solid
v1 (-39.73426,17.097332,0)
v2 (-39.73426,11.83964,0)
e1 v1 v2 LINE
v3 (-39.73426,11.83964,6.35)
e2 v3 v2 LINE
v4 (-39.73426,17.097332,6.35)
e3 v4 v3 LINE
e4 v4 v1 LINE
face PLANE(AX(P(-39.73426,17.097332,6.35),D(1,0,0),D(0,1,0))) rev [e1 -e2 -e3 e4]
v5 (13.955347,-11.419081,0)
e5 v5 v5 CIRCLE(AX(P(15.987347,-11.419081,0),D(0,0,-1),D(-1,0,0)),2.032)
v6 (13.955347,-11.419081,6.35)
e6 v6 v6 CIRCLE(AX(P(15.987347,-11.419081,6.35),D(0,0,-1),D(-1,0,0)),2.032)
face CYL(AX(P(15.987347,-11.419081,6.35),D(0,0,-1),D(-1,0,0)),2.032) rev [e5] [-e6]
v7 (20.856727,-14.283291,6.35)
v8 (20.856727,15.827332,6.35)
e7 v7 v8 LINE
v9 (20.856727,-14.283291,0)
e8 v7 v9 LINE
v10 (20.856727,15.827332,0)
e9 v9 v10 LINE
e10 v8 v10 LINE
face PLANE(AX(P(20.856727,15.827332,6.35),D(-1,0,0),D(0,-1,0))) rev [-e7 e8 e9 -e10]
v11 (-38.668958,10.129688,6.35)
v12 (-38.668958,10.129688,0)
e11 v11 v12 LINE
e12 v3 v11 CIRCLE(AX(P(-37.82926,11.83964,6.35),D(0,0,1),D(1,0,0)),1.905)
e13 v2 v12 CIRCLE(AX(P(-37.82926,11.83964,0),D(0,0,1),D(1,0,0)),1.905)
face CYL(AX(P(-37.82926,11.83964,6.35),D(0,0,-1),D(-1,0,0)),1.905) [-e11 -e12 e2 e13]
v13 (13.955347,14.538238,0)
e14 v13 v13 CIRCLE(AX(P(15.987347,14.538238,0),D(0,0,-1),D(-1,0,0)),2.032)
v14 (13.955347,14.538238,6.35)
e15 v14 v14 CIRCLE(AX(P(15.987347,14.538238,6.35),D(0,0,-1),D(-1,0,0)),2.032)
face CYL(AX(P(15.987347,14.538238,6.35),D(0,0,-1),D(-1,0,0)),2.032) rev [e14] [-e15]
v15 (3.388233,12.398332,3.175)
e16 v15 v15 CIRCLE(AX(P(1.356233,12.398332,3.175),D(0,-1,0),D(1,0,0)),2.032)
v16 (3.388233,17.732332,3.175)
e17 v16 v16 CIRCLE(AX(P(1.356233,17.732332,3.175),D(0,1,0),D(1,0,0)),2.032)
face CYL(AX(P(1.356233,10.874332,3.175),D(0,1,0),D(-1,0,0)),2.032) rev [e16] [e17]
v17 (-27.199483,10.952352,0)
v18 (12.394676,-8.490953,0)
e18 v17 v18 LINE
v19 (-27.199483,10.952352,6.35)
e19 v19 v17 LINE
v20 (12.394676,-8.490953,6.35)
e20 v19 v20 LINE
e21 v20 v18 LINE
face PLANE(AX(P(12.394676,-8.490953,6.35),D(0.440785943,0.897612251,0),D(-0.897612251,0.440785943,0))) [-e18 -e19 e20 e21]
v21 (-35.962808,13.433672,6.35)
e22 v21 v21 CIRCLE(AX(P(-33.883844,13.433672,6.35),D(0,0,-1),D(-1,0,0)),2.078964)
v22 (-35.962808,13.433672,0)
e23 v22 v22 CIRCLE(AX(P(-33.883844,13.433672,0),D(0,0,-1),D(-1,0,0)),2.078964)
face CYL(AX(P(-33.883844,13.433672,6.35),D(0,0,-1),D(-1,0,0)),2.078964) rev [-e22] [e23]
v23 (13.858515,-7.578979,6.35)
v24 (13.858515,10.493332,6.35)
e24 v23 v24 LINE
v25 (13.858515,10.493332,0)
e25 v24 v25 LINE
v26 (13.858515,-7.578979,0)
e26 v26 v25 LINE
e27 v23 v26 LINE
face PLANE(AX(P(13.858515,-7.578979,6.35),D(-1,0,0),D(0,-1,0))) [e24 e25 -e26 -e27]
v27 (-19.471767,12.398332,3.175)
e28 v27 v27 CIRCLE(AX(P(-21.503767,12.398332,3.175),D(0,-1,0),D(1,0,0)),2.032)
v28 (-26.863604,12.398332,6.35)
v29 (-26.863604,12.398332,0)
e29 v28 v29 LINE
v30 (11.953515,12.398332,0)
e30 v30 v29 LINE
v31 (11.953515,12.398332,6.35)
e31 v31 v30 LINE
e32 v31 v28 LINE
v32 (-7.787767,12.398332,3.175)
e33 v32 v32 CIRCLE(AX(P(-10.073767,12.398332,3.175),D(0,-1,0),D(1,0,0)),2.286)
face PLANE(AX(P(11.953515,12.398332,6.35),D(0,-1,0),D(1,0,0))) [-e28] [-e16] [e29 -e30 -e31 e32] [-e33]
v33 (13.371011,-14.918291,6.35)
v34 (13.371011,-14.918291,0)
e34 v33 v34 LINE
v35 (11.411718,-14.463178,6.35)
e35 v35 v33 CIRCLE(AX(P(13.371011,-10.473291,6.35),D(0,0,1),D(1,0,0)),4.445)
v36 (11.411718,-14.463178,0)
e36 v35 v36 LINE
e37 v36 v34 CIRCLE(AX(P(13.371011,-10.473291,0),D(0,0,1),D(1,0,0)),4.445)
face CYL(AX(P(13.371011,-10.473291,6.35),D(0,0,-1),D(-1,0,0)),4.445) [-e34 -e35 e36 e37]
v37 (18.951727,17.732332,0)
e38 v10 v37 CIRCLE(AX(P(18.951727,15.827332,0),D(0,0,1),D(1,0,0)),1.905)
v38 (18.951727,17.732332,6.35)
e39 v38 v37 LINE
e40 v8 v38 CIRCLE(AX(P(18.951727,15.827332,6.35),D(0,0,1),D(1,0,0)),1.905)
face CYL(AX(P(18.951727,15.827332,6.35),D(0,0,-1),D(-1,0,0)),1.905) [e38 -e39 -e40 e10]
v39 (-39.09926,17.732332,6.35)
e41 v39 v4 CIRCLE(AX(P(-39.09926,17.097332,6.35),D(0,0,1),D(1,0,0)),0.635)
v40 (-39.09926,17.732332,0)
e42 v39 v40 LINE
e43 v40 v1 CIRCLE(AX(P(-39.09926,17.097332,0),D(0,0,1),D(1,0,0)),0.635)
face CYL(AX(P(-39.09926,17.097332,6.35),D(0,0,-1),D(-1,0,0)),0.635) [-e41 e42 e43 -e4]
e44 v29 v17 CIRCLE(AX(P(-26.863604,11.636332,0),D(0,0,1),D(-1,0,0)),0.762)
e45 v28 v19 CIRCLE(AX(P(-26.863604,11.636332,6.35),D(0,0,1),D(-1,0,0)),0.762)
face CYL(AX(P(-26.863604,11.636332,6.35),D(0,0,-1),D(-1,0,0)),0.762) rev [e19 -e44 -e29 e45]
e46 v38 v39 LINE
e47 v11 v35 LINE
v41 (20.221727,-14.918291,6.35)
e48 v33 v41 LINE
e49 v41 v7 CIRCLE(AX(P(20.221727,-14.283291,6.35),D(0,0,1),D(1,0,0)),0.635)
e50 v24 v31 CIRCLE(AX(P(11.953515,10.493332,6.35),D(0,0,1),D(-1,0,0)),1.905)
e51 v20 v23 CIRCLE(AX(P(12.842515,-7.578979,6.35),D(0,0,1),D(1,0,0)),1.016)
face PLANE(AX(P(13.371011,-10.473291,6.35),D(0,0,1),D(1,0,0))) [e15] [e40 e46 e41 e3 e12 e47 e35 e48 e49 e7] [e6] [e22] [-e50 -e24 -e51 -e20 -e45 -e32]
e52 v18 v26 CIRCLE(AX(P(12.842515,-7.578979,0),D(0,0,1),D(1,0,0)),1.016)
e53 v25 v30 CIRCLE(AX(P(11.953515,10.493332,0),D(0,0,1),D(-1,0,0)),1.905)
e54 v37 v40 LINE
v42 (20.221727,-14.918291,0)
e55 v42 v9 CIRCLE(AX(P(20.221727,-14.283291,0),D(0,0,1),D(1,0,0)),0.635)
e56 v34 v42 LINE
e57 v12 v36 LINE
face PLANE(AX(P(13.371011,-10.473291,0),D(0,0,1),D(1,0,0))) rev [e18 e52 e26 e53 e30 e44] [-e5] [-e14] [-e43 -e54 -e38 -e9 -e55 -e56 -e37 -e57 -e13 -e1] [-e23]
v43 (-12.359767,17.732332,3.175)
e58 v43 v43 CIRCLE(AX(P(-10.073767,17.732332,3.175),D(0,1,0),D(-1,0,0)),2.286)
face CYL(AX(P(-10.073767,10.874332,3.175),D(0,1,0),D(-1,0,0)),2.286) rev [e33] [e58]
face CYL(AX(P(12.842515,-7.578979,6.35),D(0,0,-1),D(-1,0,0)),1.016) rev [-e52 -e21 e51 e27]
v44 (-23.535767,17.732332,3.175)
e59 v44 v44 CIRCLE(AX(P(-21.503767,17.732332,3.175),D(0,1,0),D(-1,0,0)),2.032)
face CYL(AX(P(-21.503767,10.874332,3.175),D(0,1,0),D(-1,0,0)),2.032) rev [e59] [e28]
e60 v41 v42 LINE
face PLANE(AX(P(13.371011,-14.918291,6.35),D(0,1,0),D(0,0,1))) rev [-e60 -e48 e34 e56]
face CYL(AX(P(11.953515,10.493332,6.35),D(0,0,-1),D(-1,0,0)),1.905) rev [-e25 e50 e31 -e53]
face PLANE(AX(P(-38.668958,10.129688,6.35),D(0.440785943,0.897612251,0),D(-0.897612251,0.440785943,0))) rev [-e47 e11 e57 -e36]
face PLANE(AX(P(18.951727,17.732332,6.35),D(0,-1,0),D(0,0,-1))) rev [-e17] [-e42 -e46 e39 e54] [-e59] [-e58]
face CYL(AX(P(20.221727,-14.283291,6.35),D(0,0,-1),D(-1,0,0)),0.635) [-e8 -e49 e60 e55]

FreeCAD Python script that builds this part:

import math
import FreeCAD as App
import Part
import Sketcher
from FreeCAD import Vector
Q = App.Units.Quantity

doc = App.newDocument("Part")
body = doc.addObject("PartDesign::Body", "Body")

# Sketch on XY plane
sketch1 = doc.addObject("Sketcher::SketchObject", "Sketch")
body.addObject(sketch1)
sketch1.AttachmentSupport = (doc.XY_Plane, [""])
sketch1.MapMode = "FlatFace"
sketch1.addGeometry(Part.LineSegment(Vector(-39.7, 17.1, 0), Vector(-39.7, 11.8, 0)), False)
sketch1.addGeometry(Part.ArcOfCircle(Part.Circle(Vector(-37.8, 11.8, 0), Vector(0, 0, 1), 1.9), math.radians(180), math.radians(244)), False)
sketch1.addGeometry(Part.LineSegment(Vector(-38.7, 10.1, 0), Vector(11.4, -14.5, 0)), False)
sketch1.addGeometry(Part.ArcOfCircle(Part.Circle(Vector(13.4, -10.5, 0), Vector(0, 0, 1), 4.4), math.radians(-116), math.radians(-90)), False)
sketch1.addGeometry(Part.LineSegment(Vector(13.4, -14.9, 0), Vector(20.2, -14.9, 0)), False)
sketch1.addGeometry(Part.ArcOfCircle(Part.Circle(Vector(20.2, -14.3, 0), Vector(0, 0, 1), 0.6), math.radians(-90), math.radians(0)), False)
sketch1.addGeometry(Part.LineSegment(Vector(20.9, -14.3, 0), Vector(20.9, 15.8, 0)), False)
sketch1.addGeometry(Part.ArcOfCircle(Part.Circle(Vector(19, 15.8, 0), Vector(0, 0, 1), 1.9), math.radians(0), math.radians(90)), False)
sketch1.addGeometry(Part.LineSegment(Vector(19, 17.7, 0), Vector(-39.1, 17.7, 0)), False)
sketch1.addGeometry(Part.ArcOfCircle(Part.Circle(Vector(-39.1, 17.1, 0), Vector(0, 0, 1), 0.6), math.radians(90), math.radians(180)), False)
sketch1.addGeometry(Part.LineSegment(Vector(13.9, 10.5, 0), Vector(13.9, -7.6, 0)), False)
sketch1.addGeometry(Part.ArcOfCircle(Part.Circle(Vector(12.8, -7.6, 0), Vector(0, 0, 1), 1), math.radians(-116), math.radians(0)), False)
sketch1.addGeometry(Part.LineSegment(Vector(12.4, -8.5, 0), Vector(-27.2, 11, 0)), False)
sketch1.addGeometry(Part.ArcOfCircle(Part.Circle(Vector(-26.9, 11.6, 0), Vector(0, 0, 1), 0.8), math.radians(90), math.radians(244)), False)
sketch1.addGeometry(Part.LineSegment(Vector(-26.9, 12.4, 0), Vector(12, 12.4, 0)), False)
sketch1.addGeometry(Part.ArcOfCircle(Part.Circle(Vector(12, 10.5, 0), Vector(0, 0, 1), 1.9), math.radians(0), math.radians(90)), False)
sketch1.addConstraint(Sketcher.Constraint("Tangent", 0, 2, 1, 1))
sketch1.addConstraint(Sketcher.Constraint("Tangent", 1, 2, 2, 1))
sketch1.addConstraint(Sketcher.Constraint("Tangent", 2, 2, 3, 1))
sketch1.addConstraint(Sketcher.Constraint("Tangent", 3, 2, 4, 1))
sketch1.addConstraint(Sketcher.Constraint("Tangent", 4, 2, 5, 1))
sketch1.addConstraint(Sketcher.Constraint("Tangent", 5, 2, 6, 1))
sketch1.addConstraint(Sketcher.Constraint("Tangent", 6, 2, 7, 1))
sketch1.addConstraint(Sketcher.Constraint("Tangent", 7, 2, 8, 1))
sketch1.addConstraint(Sketcher.Constraint("Tangent", 8, 2, 9, 1))
sketch1.addConstraint(Sketcher.Constraint("Tangent", 9, 2, 0, 1))
sketch1.addConstraint(Sketcher.Constraint("Tangent", 10, 2, 11, 2))
sketch1.addConstraint(Sketcher.Constraint("Tangent", 11, 1, 12, 1))
sketch1.addConstraint(Sketcher.Constraint("Tangent", 12, 2, 13, 2))
sketch1.addConstraint(Sketcher.Constraint("Tangent", 13, 1, 14, 1))
sketch1.addConstraint(Sketcher.Constraint("Tangent", 14, 2, 15, 2))
sketch1.addConstraint(Sketcher.Constraint("Tangent", 15, 1, 10, 1))
sketch1.addConstraint(Sketcher.Constraint("Vertical", 0))
sketch1.addConstraint(Sketcher.Constraint("Horizontal", 4))
sketch1.addConstraint(Sketcher.Constraint("Vertical", 6))
sketch1.addConstraint(Sketcher.Constraint("Horizontal", 8))
sketch1.addConstraint(Sketcher.Constraint("Vertical", 10))
sketch1.addConstraint(Sketcher.Constraint("Horizontal", 14))
sketch1.addConstraint(Sketcher.Constraint("Equal", 1, 7))
sketch1.addConstraint(Sketcher.Constraint("Equal", 5, 9))
sketch1.addConstraint(Sketcher.Constraint("Equal", 7, 15))
sketch1.addConstraint(Sketcher.Constraint("Parallel", 2, 12))
sketch1.addConstraint(Sketcher.Constraint("Radius", 11, Q("0.04 in")))
sketch1.addConstraint(Sketcher.Constraint("Radius", 13, Q("0.03 in")))
sketch1.addConstraint(Sketcher.Constraint("Radius", 1, Q("0.075 in")))
sketch1.addConstraint(Sketcher.Constraint("Radius", 3, Q("0.175 in")))
sketch1.addConstraint(Sketcher.Constraint("Radius", 5, Q("0.025 in")))
sketch1.addConstraint(Sketcher.Constraint("DistanceY", 15, 3, 7, 3, Q("0.21 in")))
sketch1.addConstraint(Sketcher.Constraint("DistanceX", 1, 2, -1, 1, Q("1.5223999 in")))
sketch1.addConstraint(Sketcher.Constraint("DistanceX", 14, 1, 14, 2, 38.817119))
sketch1.addConstraint(Sketcher.Constraint("DistanceY", 10, 2, 10, 1, 18.072311))
sketch1.addConstraint(Sketcher.Constraint("DistanceY", 2, 2, 11, 3, 6.884198))
sketch1.addConstraint(Sketcher.Constraint("DistanceX", 4, 1, 4, 2, 6.850715))
sketch1.addConstraint(Sketcher.Constraint("DistanceX", 8, 2, 8, 1, 58.050987))
sketch1.addConstraint(Sketcher.Constraint("DistanceY", -1, 1, 1, 3, 11.83964))
sketch1.addConstraint(Sketcher.Constraint("DistanceX", 11, 3, 5, 3, 7.379212))
pad1 = doc.addObject("PartDesign::Pad", "Pad")
body.addObject(pad1)
pad1.Profile = sketch1
pad1.Length = Q("0.25 in")

# Sketch on XZ plane
sketch2 = doc.addObject("Sketcher::SketchObject", "Sketch001")
body.addObject(sketch2)
sketch2.AttachmentSupport = (doc.XZ_Plane, [""])
sketch2.MapMode = "FlatFace"
sketch2.AttachmentOffset = App.Placement(Vector(0, 0, -17.732332), App.Rotation())
sketch2.addGeometry(Part.Circle(Vector(-21.5, 3.2, 0), Vector(0, 0, 1), 2), False)
sketch2.addGeometry(Part.Circle(Vector(1.4, 3.2, 0), Vector(0, 0, 1), 2), False)
sketch2.addConstraint(Sketcher.Constraint("Equal", 0, 1))
sketch2.addConstraint(Sketcher.Constraint("Horizontal", 0, 3, 1, 3))
sketch2.addConstraint(Sketcher.Constraint("Diameter", 0, Q("0.16 in")))
sketch2.addConstraint(Sketcher.Constraint("DistanceX", 0, 3, 1, 3, Q("0.9 in")))
sketch2.addConstraint(Sketcher.Constraint("DistanceY", -1, 1, 0, 3, Q("0.125 in")))
sketch2.addConstraint(Sketcher.Constraint("DistanceX", 0, 3, -1, 1, 21.503767))
pocket1 = doc.addObject("PartDesign::Pocket", "Pocket")
body.addObject(pocket1)
pocket1.Profile = sketch2
pocket1.Length = Q("0.27 in")
pocket1.Reversed = True

# Sketch on XZ plane
sketch3 = doc.addObject("Sketcher::SketchObject", "Sketch002")
body.addObject(sketch3)
sketch3.AttachmentSupport = (doc.XZ_Plane, [""])
sketch3.MapMode = "FlatFace"
sketch3.AttachmentOffset = App.Placement(Vector(0, 0, -17.732332), App.Rotation())
sketch3.addGeometry(Part.Circle(Vector(-10.1, 3.2, 0), Vector(0, 0, 1), 2.3), False)
sketch3.addConstraint(Sketcher.Constraint("Diameter", 0, Q("0.18 in")))
sketch3.addConstraint(Sketcher.Constraint("DistanceY", -1, 1, 0, 3, Q("0.125 in")))
sketch3.addConstraint(Sketcher.Constraint("DistanceX", 0, 3, -1, 1, 10.073767))
pocket2 = doc.addObject("PartDesign::Pocket", "Pocket001")
body.addObject(pocket2)
pocket2.Profile = sketch3
pocket2.Length = Q("0.27 in")
pocket2.Reversed = True

# Sketch on XY plane
sketch4 = doc.addObject("Sketcher::SketchObject", "Sketch003")
body.addObject(sketch4)
sketch4.AttachmentSupport = (doc.XY_Plane, [""])
sketch4.MapMode = "FlatFace"
sketch4.addGeometry(Part.Circle(Vector(-33.9, 13.4, 0), Vector(0, 0, 1), 2.1), False)
sketch4.addGeometry(Part.Circle(Vector(16, 14.5, 0), Vector(0, 0, 1), 2), False)
sketch4.addGeometry(Part.Circle(Vector(16, -11.4, 0), Vector(0, 0, 1), 2), False)
sketch4.addConstraint(Sketcher.Constraint("Equal", 1, 2))
sketch4.addConstraint(Sketcher.Constraint("Vertical", 1, 3, 2, 3))
sketch4.addConstraint(Sketcher.Constraint("Diameter", 1, Q("0.16 in")))
sketch4.addConstraint(Sketcher.Constraint("Diameter", 0, 4.157927))
sketch4.addConstraint(Sketcher.Constraint("DistanceY", -1, 1, 0, 3, 13.433672))
sketch4.addConstraint(Sketcher.Constraint("DistanceY", -1, 1, 1, 3, 14.538238))
sketch4.addConstraint(Sketcher.Constraint("DistanceY", 2, 3, -1, 1, 11.419081))
sketch4.addConstraint(Sketcher.Constraint("DistanceX", 0, 3, 1, 3, 49.871191))
sketch4.addConstraint(Sketcher.Constraint("DistanceX", 0, 3, -1, 1, 33.883844))
pocket3 = doc.addObject("PartDesign::Pocket", "Pocket002")
body.addObject(pocket3)
pocket3.Profile = sketch4
pocket3.Type = "ThroughAll"
pocket3.Reversed = True

doc.recompute()
